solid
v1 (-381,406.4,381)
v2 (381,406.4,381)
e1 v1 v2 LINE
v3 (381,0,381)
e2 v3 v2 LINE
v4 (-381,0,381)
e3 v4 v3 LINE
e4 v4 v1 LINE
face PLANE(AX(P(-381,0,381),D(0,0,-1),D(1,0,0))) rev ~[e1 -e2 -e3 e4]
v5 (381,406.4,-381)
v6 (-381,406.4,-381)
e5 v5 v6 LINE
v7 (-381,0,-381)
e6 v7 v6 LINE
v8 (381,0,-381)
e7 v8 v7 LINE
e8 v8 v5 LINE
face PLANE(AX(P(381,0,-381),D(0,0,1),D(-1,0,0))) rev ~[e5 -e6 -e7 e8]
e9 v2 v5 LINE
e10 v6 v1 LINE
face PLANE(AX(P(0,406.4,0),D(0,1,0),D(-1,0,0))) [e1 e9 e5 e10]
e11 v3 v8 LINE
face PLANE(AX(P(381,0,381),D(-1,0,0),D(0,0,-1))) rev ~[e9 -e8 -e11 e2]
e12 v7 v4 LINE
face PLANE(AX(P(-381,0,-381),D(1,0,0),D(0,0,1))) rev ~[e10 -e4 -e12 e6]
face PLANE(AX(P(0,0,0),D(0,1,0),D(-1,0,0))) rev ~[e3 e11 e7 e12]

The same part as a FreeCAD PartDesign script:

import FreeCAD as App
import Part
import Sketcher

V = App.Vector
Q = App.Units.Quantity


def add_polygon(sketch, points):
    """Adds a closed chain of lines whose ends are joined by coincident constraints."""
    first, n = sketch.GeometryCount, len(points)
    for a, b in zip(points, points[1:] + points[:1]):
        sketch.addGeometry(Part.LineSegment(App.Vector(*a, 0), App.Vector(*b, 0)), False)
    for i in range(n):
        sketch.addConstraint(Sketcher.Constraint("Coincident", first + i, 2, first + (i + 1) % n, 1))

doc = App.newDocument("Part")
body = doc.addObject("PartDesign::Body", "Body")

sketch1 = doc.addObject("Sketcher::SketchObject", "Sketch")
body.addObject(sketch1)
sketch1.AttachmentSupport = (doc.XZ_Plane, [""])
sketch1.MapMode = "FlatFace"
add_polygon(sketch1, [(-381, -381), (-381, 381), (381, 381), (381, -381)])
sketch1.addConstraint([
    Sketcher.Constraint("Vertical", 0),
    Sketcher.Constraint("Horizontal", 1),
    Sketcher.Constraint("Vertical", 2),
    Sketcher.Constraint("Horizontal", 3),
    Sketcher.Constraint("Symmetric", 0, 2, 2, 2, -1, 1),
    Sketcher.Constraint("Equal", 3, 0),
    Sketcher.Constraint("DistanceX", 1, 1, 1, 2, Q("30 in")),
])
pad1 = doc.addObject("PartDesign::Pad", "Pad")
body.addObject(pad1)
pad1.Profile = sketch1
pad1.Length = Q("16 in")
pad1.Reversed = True

doc.recompute()
